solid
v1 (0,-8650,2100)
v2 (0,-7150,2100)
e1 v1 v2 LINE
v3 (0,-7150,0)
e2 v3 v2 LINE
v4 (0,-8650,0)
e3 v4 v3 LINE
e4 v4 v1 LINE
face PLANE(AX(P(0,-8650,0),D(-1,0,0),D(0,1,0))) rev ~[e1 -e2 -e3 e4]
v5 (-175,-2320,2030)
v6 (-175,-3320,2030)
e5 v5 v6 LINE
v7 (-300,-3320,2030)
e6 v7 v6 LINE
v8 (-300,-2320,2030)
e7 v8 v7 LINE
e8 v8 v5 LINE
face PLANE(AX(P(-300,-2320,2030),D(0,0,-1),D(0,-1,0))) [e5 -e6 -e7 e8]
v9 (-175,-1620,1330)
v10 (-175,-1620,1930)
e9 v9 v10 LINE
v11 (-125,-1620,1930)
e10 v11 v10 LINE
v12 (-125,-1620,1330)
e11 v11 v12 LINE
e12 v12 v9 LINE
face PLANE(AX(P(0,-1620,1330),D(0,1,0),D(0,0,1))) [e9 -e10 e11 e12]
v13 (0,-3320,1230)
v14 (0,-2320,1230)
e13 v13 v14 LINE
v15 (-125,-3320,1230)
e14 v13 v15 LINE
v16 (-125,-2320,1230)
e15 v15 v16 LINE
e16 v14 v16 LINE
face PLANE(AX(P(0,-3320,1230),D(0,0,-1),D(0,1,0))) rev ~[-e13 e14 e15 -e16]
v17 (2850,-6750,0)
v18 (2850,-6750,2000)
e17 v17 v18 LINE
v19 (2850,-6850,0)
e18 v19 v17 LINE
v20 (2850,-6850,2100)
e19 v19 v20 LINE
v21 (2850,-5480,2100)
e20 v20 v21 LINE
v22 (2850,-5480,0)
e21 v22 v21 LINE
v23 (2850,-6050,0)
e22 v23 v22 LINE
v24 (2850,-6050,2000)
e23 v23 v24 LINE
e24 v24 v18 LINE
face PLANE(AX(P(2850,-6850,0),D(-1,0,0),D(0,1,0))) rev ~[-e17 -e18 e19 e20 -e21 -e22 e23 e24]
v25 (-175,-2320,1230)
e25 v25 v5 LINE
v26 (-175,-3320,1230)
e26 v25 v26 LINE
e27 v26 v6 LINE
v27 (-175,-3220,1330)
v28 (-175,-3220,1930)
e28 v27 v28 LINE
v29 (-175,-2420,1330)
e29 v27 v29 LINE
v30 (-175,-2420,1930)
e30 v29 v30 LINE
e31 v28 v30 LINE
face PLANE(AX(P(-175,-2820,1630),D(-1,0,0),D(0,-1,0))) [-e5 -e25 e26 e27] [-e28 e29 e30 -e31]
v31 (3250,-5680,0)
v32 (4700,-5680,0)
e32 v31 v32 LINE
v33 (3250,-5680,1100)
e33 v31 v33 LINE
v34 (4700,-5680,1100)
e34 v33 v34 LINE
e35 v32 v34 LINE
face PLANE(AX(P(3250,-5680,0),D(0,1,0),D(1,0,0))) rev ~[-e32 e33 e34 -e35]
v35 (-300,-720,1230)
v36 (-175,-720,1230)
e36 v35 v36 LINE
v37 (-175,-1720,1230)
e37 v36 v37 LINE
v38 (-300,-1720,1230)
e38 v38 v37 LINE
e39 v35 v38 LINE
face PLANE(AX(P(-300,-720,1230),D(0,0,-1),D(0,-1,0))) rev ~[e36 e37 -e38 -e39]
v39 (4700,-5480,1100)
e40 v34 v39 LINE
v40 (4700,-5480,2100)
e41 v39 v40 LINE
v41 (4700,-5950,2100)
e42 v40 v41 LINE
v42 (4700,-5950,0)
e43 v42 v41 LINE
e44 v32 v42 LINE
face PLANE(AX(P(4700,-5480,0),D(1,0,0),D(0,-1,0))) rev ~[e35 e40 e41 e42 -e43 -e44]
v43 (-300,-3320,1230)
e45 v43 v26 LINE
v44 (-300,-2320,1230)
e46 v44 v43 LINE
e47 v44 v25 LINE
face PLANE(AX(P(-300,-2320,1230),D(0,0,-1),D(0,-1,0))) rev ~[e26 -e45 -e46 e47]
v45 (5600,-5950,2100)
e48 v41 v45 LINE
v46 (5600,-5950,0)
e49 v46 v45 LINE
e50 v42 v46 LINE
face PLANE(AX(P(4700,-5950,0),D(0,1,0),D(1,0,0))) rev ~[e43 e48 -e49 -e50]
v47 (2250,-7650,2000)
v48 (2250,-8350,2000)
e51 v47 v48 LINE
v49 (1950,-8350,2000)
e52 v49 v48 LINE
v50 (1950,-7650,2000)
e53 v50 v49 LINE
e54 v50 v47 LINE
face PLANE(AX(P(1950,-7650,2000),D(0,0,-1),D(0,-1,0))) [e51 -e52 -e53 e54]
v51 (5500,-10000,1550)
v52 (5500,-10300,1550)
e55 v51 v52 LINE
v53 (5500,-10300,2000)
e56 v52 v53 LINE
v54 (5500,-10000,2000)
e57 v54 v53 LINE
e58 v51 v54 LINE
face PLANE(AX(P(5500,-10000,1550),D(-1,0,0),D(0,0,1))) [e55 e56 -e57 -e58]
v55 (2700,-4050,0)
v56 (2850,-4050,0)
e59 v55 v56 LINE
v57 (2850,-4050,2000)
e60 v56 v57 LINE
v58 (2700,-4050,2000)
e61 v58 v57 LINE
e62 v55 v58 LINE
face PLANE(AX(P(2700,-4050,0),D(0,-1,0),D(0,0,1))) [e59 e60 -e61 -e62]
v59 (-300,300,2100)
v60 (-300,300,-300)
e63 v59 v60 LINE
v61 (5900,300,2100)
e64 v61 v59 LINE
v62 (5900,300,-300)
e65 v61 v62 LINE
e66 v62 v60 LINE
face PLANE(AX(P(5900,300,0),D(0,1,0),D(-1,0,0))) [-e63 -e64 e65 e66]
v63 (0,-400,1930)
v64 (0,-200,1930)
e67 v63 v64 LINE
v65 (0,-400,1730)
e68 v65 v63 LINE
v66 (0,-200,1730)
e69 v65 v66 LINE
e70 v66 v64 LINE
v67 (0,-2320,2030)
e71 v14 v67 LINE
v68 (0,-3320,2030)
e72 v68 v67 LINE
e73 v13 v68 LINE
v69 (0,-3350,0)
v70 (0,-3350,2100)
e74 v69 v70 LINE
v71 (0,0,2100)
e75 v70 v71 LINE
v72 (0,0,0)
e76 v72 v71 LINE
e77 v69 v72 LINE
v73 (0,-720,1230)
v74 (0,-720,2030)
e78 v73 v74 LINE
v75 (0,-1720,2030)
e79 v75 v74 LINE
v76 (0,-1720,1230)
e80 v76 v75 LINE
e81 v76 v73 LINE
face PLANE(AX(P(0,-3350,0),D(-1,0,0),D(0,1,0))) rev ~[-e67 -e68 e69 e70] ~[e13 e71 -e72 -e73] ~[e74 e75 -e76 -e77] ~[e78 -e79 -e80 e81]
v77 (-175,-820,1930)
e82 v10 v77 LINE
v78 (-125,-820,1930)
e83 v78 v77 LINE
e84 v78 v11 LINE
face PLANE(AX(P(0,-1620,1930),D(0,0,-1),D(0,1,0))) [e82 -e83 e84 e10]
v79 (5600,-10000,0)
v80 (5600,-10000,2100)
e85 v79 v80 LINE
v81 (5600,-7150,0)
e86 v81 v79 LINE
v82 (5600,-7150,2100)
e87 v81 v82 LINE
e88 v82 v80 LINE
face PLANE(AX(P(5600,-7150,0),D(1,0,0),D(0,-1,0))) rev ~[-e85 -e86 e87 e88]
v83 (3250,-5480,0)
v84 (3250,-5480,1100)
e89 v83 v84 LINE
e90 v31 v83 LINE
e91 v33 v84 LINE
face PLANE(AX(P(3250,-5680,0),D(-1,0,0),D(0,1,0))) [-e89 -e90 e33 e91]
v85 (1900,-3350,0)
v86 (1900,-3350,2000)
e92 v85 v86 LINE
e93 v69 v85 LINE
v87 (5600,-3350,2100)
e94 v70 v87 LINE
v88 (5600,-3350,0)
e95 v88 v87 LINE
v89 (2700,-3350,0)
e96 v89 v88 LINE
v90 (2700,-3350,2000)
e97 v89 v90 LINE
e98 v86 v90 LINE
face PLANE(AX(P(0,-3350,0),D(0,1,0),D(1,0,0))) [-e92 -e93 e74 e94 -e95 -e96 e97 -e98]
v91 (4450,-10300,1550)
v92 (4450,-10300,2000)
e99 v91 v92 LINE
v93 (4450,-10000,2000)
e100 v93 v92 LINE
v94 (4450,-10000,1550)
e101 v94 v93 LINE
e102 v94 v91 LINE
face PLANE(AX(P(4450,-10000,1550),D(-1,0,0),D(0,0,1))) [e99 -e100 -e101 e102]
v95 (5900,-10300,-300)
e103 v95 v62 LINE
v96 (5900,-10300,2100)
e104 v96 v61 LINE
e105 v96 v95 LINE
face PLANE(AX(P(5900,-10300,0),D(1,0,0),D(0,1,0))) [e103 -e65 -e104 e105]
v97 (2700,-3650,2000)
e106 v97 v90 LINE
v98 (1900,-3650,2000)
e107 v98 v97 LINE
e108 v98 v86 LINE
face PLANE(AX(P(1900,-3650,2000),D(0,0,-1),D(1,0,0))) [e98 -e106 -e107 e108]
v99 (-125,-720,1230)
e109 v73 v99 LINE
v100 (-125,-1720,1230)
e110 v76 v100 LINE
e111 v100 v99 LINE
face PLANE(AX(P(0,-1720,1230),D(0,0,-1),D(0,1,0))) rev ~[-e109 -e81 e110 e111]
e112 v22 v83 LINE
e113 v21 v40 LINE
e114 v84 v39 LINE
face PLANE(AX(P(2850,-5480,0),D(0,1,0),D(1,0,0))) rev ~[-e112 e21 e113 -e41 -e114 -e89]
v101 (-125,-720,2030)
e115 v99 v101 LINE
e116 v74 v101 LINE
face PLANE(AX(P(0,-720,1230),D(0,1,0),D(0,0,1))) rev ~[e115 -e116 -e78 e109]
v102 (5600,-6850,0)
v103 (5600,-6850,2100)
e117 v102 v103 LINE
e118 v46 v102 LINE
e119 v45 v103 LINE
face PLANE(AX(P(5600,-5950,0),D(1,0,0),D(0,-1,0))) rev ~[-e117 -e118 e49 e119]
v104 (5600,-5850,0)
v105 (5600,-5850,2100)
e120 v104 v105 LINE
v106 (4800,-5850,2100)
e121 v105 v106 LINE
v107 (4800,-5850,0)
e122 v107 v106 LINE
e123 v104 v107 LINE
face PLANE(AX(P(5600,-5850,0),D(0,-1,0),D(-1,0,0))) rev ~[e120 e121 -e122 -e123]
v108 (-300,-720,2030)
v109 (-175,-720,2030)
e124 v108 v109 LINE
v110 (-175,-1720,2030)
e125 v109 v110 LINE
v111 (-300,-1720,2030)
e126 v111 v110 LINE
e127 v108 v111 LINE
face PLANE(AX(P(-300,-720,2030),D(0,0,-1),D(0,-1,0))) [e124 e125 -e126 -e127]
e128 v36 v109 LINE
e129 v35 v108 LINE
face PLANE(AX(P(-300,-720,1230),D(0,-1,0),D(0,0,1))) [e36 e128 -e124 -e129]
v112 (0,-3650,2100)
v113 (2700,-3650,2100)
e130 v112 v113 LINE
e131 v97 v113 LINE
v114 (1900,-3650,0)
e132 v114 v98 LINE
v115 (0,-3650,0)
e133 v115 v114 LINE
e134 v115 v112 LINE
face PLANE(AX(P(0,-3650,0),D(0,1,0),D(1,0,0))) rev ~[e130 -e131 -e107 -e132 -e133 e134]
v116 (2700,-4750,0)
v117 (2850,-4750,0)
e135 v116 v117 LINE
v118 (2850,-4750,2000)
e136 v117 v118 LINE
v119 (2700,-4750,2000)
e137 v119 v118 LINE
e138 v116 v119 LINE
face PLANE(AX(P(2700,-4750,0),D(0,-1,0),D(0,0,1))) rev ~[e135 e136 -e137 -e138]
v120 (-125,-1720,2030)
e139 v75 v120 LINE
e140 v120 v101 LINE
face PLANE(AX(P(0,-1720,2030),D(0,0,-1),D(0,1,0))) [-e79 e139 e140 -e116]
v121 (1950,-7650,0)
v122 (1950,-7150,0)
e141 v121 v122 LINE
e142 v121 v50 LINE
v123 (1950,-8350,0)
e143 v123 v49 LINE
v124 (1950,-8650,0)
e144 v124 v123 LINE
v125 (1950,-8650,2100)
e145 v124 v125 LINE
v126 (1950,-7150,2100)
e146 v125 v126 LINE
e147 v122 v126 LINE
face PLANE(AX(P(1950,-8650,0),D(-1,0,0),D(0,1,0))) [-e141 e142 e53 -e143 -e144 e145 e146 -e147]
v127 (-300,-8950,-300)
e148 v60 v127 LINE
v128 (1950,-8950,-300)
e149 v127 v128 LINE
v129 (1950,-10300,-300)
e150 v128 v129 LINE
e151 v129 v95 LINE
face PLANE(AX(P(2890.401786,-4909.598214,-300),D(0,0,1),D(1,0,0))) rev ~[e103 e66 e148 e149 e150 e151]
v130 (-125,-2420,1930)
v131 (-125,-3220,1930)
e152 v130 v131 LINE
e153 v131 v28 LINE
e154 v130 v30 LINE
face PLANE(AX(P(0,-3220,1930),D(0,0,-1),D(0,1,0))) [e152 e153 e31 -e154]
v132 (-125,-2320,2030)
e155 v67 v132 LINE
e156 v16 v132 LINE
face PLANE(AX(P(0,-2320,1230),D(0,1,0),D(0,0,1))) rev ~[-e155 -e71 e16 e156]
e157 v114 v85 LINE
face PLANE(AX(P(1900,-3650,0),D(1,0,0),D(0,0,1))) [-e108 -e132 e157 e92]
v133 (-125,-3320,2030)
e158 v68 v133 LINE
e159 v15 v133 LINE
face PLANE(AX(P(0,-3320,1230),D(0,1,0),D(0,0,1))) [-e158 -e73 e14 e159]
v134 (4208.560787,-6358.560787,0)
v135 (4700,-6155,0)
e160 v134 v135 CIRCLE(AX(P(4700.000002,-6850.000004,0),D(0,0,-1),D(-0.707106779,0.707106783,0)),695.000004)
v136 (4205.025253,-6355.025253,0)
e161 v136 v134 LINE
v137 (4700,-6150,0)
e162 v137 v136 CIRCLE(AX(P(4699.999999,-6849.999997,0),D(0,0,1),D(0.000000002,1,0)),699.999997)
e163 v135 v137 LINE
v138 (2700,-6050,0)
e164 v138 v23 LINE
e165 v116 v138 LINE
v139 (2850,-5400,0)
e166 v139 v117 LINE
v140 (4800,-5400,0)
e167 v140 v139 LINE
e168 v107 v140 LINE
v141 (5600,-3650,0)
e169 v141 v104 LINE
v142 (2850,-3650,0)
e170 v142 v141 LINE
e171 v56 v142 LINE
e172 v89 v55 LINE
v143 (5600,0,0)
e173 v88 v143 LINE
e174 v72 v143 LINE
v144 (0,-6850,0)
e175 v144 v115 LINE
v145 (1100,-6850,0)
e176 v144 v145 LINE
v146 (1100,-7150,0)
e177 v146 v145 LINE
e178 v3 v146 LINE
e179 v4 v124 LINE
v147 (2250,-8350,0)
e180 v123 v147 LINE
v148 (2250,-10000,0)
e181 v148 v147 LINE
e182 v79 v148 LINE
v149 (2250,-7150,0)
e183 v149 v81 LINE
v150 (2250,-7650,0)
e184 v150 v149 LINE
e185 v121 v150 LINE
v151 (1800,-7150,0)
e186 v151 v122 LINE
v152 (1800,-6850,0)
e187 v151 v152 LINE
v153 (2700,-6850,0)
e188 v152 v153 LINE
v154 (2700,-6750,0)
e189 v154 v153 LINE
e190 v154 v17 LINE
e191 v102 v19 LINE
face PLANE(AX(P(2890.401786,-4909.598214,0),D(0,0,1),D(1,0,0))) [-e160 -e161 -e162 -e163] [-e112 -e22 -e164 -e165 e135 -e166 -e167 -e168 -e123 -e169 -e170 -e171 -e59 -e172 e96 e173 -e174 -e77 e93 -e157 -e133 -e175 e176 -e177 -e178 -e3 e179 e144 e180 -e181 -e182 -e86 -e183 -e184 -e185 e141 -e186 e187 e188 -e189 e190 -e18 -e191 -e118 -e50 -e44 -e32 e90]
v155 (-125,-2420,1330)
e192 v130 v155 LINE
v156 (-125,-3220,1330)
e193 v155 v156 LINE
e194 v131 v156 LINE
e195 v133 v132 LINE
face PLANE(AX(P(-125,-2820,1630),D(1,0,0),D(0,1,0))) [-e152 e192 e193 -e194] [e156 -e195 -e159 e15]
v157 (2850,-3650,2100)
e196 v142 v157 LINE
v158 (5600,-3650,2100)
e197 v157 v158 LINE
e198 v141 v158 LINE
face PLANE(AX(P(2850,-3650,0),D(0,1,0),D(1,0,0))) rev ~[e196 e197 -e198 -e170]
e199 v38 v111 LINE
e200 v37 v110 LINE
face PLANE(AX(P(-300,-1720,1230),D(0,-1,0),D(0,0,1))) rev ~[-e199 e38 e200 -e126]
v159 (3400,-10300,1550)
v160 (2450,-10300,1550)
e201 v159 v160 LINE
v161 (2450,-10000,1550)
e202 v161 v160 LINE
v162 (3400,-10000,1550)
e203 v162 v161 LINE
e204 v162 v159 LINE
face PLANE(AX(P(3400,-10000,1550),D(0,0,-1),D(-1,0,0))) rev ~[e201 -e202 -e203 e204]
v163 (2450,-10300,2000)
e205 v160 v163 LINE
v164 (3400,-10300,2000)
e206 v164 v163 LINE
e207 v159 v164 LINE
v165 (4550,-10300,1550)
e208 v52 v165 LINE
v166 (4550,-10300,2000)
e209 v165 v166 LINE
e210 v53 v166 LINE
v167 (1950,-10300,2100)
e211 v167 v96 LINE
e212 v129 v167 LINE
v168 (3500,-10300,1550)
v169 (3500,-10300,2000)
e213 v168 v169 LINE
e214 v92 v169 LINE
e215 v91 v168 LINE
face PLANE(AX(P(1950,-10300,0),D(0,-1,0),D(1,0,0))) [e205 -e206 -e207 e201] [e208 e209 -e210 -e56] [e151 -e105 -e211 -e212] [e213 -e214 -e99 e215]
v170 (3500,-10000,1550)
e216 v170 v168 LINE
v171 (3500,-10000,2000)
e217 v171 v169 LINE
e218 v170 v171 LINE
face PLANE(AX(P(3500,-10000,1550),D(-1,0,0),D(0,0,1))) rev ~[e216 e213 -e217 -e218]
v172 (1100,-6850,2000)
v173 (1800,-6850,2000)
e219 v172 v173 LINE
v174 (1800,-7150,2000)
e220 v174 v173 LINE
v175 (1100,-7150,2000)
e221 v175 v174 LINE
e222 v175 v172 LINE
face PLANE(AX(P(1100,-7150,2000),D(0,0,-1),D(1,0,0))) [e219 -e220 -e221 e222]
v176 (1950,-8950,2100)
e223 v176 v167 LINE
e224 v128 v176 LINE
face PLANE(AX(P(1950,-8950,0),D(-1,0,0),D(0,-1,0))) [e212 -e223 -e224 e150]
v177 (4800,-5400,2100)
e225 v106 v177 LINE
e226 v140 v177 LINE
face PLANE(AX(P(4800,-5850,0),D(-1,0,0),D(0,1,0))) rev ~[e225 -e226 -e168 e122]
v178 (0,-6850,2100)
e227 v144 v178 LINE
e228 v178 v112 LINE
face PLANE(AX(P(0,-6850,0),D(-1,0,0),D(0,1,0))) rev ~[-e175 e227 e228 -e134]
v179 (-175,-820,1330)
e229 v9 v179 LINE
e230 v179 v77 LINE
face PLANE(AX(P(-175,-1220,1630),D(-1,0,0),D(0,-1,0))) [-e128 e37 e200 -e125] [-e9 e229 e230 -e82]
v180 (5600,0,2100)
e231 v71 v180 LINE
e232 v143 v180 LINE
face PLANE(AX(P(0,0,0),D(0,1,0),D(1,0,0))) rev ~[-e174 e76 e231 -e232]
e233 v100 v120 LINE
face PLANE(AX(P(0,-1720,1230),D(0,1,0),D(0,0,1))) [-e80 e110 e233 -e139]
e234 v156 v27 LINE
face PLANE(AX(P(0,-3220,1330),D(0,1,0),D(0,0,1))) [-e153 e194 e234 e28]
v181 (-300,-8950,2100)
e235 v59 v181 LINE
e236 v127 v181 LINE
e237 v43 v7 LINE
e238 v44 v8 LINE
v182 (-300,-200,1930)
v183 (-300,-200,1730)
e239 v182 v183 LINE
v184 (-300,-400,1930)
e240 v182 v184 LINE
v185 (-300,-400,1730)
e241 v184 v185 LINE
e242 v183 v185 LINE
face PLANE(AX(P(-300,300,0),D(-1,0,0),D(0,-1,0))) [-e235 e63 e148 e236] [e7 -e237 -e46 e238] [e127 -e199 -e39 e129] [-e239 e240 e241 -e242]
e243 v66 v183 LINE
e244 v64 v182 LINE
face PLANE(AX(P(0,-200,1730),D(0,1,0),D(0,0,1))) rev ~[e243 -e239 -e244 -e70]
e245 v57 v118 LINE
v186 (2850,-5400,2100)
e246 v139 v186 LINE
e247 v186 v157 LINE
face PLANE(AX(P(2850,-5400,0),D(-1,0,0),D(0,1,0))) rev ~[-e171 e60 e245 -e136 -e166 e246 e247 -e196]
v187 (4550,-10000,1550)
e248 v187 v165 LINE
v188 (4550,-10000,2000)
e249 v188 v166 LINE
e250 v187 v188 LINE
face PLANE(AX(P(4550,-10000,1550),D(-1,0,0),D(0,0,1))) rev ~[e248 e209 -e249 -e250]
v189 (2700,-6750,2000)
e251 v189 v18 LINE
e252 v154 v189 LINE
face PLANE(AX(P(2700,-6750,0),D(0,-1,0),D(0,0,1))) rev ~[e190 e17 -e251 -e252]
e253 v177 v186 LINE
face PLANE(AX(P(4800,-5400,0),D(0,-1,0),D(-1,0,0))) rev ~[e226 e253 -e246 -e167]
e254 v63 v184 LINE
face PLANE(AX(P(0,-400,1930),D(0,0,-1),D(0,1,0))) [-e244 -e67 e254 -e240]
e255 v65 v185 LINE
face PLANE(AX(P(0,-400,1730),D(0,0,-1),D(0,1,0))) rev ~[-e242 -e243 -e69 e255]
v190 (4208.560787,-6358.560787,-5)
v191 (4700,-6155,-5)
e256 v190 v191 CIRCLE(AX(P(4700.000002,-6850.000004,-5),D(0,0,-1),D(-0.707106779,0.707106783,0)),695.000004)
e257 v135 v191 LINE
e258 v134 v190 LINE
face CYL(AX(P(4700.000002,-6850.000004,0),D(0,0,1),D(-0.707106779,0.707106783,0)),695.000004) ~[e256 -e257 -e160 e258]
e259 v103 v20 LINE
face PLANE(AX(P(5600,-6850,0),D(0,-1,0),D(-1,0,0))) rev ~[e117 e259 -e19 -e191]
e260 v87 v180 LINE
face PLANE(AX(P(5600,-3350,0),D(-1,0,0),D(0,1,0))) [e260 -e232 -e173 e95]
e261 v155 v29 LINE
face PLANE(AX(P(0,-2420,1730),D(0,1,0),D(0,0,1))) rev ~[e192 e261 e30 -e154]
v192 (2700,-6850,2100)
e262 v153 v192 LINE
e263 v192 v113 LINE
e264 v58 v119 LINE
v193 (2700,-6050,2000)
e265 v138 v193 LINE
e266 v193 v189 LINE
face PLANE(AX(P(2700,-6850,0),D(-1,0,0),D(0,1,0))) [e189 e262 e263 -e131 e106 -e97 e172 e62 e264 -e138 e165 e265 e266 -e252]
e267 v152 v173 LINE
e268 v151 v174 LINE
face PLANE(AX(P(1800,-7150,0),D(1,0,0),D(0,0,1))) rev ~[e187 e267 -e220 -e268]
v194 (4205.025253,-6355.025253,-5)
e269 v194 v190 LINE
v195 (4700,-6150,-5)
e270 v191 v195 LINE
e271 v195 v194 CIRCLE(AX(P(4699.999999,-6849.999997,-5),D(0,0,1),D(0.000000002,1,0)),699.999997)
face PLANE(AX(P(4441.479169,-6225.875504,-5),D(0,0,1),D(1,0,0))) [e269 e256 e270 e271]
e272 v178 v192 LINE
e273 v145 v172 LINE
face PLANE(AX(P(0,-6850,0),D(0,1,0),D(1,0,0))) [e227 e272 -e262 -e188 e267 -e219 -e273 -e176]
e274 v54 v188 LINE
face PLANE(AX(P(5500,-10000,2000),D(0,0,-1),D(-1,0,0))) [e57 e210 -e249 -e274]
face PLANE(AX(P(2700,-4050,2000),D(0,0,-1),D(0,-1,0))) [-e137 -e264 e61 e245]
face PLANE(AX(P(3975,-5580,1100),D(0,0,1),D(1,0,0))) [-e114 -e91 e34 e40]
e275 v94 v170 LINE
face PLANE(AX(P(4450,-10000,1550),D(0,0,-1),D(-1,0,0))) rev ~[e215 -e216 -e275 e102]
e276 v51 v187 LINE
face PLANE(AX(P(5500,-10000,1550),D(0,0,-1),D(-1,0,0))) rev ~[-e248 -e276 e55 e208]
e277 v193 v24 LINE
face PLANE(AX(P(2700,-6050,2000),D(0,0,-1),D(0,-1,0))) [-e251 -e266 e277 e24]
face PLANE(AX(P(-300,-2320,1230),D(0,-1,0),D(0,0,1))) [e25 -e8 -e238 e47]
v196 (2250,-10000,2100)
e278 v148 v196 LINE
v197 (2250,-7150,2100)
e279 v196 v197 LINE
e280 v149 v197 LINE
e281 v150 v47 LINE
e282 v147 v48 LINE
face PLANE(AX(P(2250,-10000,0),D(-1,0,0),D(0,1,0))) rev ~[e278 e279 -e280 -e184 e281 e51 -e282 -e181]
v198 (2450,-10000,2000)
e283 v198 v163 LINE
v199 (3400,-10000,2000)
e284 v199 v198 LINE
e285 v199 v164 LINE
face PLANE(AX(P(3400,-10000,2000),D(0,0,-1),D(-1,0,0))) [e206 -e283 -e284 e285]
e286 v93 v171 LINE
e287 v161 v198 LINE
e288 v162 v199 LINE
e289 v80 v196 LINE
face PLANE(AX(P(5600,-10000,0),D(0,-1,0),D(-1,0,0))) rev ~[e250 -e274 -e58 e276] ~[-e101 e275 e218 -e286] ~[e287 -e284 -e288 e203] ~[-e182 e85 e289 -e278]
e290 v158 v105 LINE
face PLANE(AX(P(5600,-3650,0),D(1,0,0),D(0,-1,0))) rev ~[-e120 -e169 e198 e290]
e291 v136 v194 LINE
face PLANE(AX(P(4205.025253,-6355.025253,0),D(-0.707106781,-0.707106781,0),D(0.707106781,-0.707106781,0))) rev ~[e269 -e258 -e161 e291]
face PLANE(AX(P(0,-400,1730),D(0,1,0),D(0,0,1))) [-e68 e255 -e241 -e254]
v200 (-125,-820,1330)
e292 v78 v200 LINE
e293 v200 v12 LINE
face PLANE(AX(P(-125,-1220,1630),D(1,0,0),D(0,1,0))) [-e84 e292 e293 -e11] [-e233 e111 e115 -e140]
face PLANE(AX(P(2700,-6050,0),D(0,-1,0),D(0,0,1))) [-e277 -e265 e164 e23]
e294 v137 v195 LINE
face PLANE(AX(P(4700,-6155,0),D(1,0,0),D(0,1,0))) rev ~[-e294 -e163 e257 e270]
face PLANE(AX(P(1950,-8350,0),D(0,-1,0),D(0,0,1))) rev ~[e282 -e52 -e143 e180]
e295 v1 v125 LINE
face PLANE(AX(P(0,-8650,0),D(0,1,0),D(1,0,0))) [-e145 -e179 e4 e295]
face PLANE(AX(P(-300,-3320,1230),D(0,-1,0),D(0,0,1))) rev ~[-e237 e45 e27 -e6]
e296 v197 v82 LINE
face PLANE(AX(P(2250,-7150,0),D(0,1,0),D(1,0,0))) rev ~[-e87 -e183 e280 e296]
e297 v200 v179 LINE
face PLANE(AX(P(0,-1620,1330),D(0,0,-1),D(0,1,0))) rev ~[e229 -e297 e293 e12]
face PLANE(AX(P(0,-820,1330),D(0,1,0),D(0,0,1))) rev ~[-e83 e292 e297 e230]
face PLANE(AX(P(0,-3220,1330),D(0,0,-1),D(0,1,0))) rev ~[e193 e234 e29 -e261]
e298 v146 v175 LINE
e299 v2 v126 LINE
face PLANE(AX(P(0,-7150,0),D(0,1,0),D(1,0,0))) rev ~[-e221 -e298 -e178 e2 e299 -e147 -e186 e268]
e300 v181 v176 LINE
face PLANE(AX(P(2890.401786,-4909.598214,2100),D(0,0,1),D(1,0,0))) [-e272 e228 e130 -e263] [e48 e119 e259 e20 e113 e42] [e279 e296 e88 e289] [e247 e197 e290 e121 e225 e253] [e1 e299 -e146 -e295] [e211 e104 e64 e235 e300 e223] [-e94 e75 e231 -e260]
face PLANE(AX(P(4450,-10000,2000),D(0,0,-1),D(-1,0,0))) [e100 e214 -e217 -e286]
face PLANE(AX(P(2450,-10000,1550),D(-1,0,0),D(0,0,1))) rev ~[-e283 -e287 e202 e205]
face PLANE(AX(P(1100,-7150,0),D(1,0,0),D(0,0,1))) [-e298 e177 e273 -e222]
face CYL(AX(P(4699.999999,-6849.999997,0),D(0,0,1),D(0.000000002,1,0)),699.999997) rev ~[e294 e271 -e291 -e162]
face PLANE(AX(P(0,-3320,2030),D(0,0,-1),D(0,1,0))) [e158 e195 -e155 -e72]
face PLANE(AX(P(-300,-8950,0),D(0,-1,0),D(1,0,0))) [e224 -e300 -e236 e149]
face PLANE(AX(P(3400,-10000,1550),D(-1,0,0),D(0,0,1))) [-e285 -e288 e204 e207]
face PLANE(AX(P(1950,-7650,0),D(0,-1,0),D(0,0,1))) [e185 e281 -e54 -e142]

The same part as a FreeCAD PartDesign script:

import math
import FreeCAD as App
import Part
import Sketcher
Q = App.Units.Quantity

doc = App.newDocument("Part")
body = doc.addObject("PartDesign::Body", "Body")

# Sketch on XY plane
sketch1 = body.newObject("Sketcher::SketchObject", "Sketch")
sketch1.AttachmentSupport = (doc.getObject("XY_Plane"), [""])
sketch1.MapMode = "FlatFace"
sketch1.addGeometry([
    Part.LineSegment(App.Vector(5900, -10300, 0), App.Vector(5900, 300, 0)),  # 0
    Part.LineSegment(App.Vector(5900, 300, 0), App.Vector(-300, 300, 0)),  # 1
    Part.LineSegment(App.Vector(-300, 300, 0), App.Vector(-300, -8950, 0)),  # 2
    Part.LineSegment(App.Vector(-300, -8950, 0), App.Vector(1950, -8950, 0)),  # 3
    Part.LineSegment(App.Vector(1950, -8950, 0), App.Vector(1950, -10300, 0)),  # 4
    Part.LineSegment(App.Vector(1950, -10300, 0), App.Vector(5900, -10300, 0)),  # 5
    Part.LineSegment(App.Vector(1950, -8650, 0), App.Vector(0, -8650, 0)),  # 6
    Part.LineSegment(App.Vector(0, -8650, 0), App.Vector(0, -7150, 0)),  # 7
    Part.LineSegment(App.Vector(0, -7150, 0), App.Vector(1950, -7150, 0)),  # 8
    Part.LineSegment(App.Vector(1950, -7150, 0), App.Vector(1950, -8650, 0)),  # 9
    Part.LineSegment(App.Vector(2700, -6850, 0), App.Vector(0, -6850, 0)),  # 10
    Part.LineSegment(App.Vector(0, -6850, 0), App.Vector(0, -3650, 0)),  # 11
    Part.LineSegment(App.Vector(0, -3650, 0), App.Vector(2700, -3650, 0)),  # 12
    Part.LineSegment(App.Vector(2700, -3650, 0), App.Vector(2700, -6850, 0)),  # 13
    Part.LineSegment(App.Vector(2250, -7150, 0), App.Vector(5600, -7150, 0)),  # 14
    Part.LineSegment(App.Vector(5600, -7150, 0), App.Vector(5600, -10000, 0)),  # 15
    Part.LineSegment(App.Vector(5600, -10000, 0), App.Vector(2250, -10000, 0)),  # 16
    Part.LineSegment(App.Vector(2250, -10000, 0), App.Vector(2250, -7150, 0)),  # 17
    Part.LineSegment(App.Vector(5600, -5950, 0), App.Vector(5600, -6850, 0)),  # 18
    Part.LineSegment(App.Vector(5600, -6850, 0), App.Vector(2850, -6850, 0)),  # 19
    Part.LineSegment(App.Vector(2850, -6850, 0), App.Vector(2850, -5480, 0)),  # 20
    Part.LineSegment(App.Vector(2850, -5480, 0), App.Vector(4700, -5480, 0)),  # 21
    Part.LineSegment(App.Vector(4700, -5480, 0), App.Vector(4700, -5950, 0)),  # 22
    Part.LineSegment(App.Vector(4700, -5950, 0), App.Vector(5600, -5950, 0)),  # 23
    Part.LineSegment(App.Vector(4800, -5400, 0), App.Vector(2850, -5400, 0)),  # 24
    Part.LineSegment(App.Vector(2850, -5400, 0), App.Vector(2850, -3650, 0)),  # 25
    Part.LineSegment(App.Vector(2850, -3650, 0), App.Vector(5600, -3650, 0)),  # 26
    Part.LineSegment(App.Vector(5600, -3650, 0), App.Vector(5600, -5850, 0)),  # 27
    Part.LineSegment(App.Vector(5600, -5850, 0), App.Vector(4800, -5850, 0)),  # 28
    Part.LineSegment(App.Vector(4800, -5850, 0), App.Vector(4800, -5400, 0)),  # 29
    Part.LineSegment(App.Vector(5600, -3350, 0), App.Vector(0, -3350, 0)),  # 30
    Part.LineSegment(App.Vector(0, -3350, 0), App.Vector(0, 0, 0)),  # 31
    Part.LineSegment(App.Vector(0, 0, 0), App.Vector(5600, 0, 0)),  # 32
    Part.LineSegment(App.Vector(5600, 0, 0), App.Vector(5600, -3350, 0)),  # 33
], False)
sketch1.addConstraint([
    Sketcher.Constraint("Coincident", 0, 2, 1, 1),
    Sketcher.Constraint("Coincident", 1, 2, 2, 1),
    Sketcher.Constraint("Coincident", 2, 2, 3, 1),
    Sketcher.Constraint("Coincident", 3, 2, 4, 1),
    Sketcher.Constraint("Coincident", 4, 2, 5, 1),
    Sketcher.Constraint("Coincident", 5, 2, 0, 1),
    Sketcher.Constraint("Coincident", 6, 2, 7, 1),
    Sketcher.Constraint("Coincident", 7, 2, 8, 1),
    Sketcher.Constraint("Coincident", 8, 2, 9, 1),
    Sketcher.Constraint("Coincident", 9, 2, 6, 1),
    Sketcher.Constraint("Coincident", 10, 2, 11, 1),
    Sketcher.Constraint("Coincident", 11, 2, 12, 1),
    Sketcher.Constraint("Coincident", 12, 2, 13, 1),
    Sketcher.Constraint("Coincident", 13, 2, 10, 1),
    Sketcher.Constraint("Coincident", 14, 2, 15, 1),
    Sketcher.Constraint("Coincident", 15, 2, 16, 1),
    Sketcher.Constraint("Coincident", 16, 2, 17, 1),
    Sketcher.Constraint("Coincident", 17, 2, 14, 1),
    Sketcher.Constraint("Coincident", 18, 2, 19, 1),
    Sketcher.Constraint("Coincident", 19, 2, 20, 1),
    Sketcher.Constraint("Coincident", 20, 2, 21, 1),
    Sketcher.Constraint("Coincident", 21, 2, 22, 1),
    Sketcher.Constraint("Coincident", 22, 2, 23, 1),
    Sketcher.Constraint("Coincident", 23, 2, 18, 1),
    Sketcher.Constraint("Coincident", 24, 2, 25, 1),
    Sketcher.Constraint("Coincident", 25, 2, 26, 1),
    Sketcher.Constraint("Coincident", 26, 2, 27, 1),
    Sketcher.Constraint("Coincident", 27, 2, 28, 1),
    Sketcher.Constraint("Coincident", 28, 2, 29, 1),
    Sketcher.Constraint("Coincident", 29, 2, 24, 1),
    Sketcher.Constraint("Coincident", 30, 2, 31, 1),
    Sketcher.Constraint("Coincident", 31, 2, 32, 1),
    Sketcher.Constraint("Coincident", 32, 2, 33, 1),
    Sketcher.Constraint("Coincident", 33, 2, 30, 1),
    Sketcher.Constraint("Vertical", 0),
    Sketcher.Constraint("Horizontal", 1),
    Sketcher.Constraint("Vertical", 2),
    Sketcher.Constraint("Horizontal", 3),
    Sketcher.Constraint("Vertical", 4),
    Sketcher.Constraint("Horizontal", 5),
    Sketcher.Constraint("Horizontal", 6),
    Sketcher.Constraint("Vertical", 7),
    Sketcher.Constraint("Horizontal", 8),
    Sketcher.Constraint("Vertical", 9),
    Sketcher.Constraint("Horizontal", 10),
    Sketcher.Constraint("Vertical", 11),
    Sketcher.Constraint("Horizontal", 12),
    Sketcher.Constraint("Vertical", 13),
    Sketcher.Constraint("Horizontal", 14),
    Sketcher.Constraint("Vertical", 15),
    Sketcher.Constraint("Horizontal", 16),
    Sketcher.Constraint("Vertical", 17),
    Sketcher.Constraint("Vertical", 18),
    Sketcher.Constraint("Horizontal", 19),
    Sketcher.Constraint("Vertical", 20),
    Sketcher.Constraint("Horizontal", 21),
    Sketcher.Constraint("Vertical", 22),
    Sketcher.Constraint("Horizontal", 23),
    Sketcher.Constraint("Horizontal", 24),
    Sketcher.Constraint("Vertical", 25),
    Sketcher.Constraint("Horizontal", 26),
    Sketcher.Constraint("Vertical", 27),
    Sketcher.Constraint("Horizontal", 28),
    Sketcher.Constraint("Vertical", 29),
    Sketcher.Constraint("Horizontal", 30),
    Sketcher.Constraint("Vertical", 31),
    Sketcher.Constraint("Horizontal", 32),
    Sketcher.Constraint("Vertical", 33),
    Sketcher.Constraint("Coincident", 31, 2, -1, 1),
    Sketcher.Constraint("PointOnObject", 6, 2, -2),
    Sketcher.Constraint("PointOnObject", 10, 2, -2),
    Sketcher.Constraint("Horizontal", 8, 2, 14, 2),
    Sketcher.Constraint("Horizontal", 13, 2, 18, 2),
    Sketcher.Constraint("Horizontal", 12, 2, 25, 2),
    Sketcher.Constraint("Vertical", 4, 2, 8, 2),
    Sketcher.Constraint("Vertical", 15, 2, 18, 2),
    Sketcher.Constraint("Vertical", 20, 2, 24, 2),
    Sketcher.Constraint("Vertical", 23, 2, 26, 2),
    Sketcher.Constraint("Vertical", 27, 2, 32, 2),
    Sketcher.Constraint("Equal", 8, 24),
    Sketcher.Constraint("Equal", 23, 18),
    Sketcher.Constraint("Equal", 16, 31),
    Sketcher.Constraint("DistanceX", 1, 2, 1, 1, 6200.0),
    Sketcher.Constraint("DistanceX", 3, 1, 3, 2, 2250.0),
    Sketcher.Constraint("DistanceX", 6, 2, 6, 1, 1950.0),
    Sketcher.Constraint("DistanceX", 10, 2, 10, 1, 2700.0),
    Sketcher.Constraint("DistanceX", 14, 1, 14, 2, 3350.0),
    Sketcher.Constraint("DistanceX", 19, 2, 19, 1, 2750.0),
    Sketcher.Constraint("DistanceX", 21, 1, 21, 2, 1850.0),
    Sketcher.Constraint("DistanceX", 30, 2, 30, 1, 5600.0),
    Sketcher.Constraint("DistanceY", 0, 1, 0, 2, 10600.0),
    Sketcher.Constraint("DistanceY", 2, 2, 2, 1, 9250.0),
    Sketcher.Constraint("DistanceY", 7, 1, 7, 2, 1500.0),
    Sketcher.Constraint("DistanceY", 11, 1, 11, 2, 3200.0),
    Sketcher.Constraint("DistanceY", 15, 2, 15, 1, 2850.0),
    Sketcher.Constraint("DistanceY", 20, 1, 20, 2, 1370.0),
    Sketcher.Constraint("DistanceY", 25, 1, 25, 2, 1750.0),
    Sketcher.Constraint("DistanceY", 27, 2, 27, 1, 2200.0),
    Sketcher.Constraint("DistanceY", -1, 1, 0, 2, 300.0),
    Sketcher.Constraint("DistanceY", 6, 2, -1, 1, 8650.0),
    Sketcher.Constraint("DistanceY", 10, 2, -1, 1, 6850.0),
])
pad1 = body.newObject("PartDesign::Pad", "Pad")
pad1.Profile = sketch1
pad1.Length = 2100

# Sketch on XY plane
sketch2 = body.newObject("Sketcher::SketchObject", "Sketch001")
sketch2.AttachmentSupport = (doc.getObject("XY_Plane"), [""])
sketch2.MapMode = "FlatFace"
sketch2.addGeometry([
    Part.LineSegment(App.Vector(-300, 300, 0), App.Vector(-300, -8950, 0)),  # 0
    Part.LineSegment(App.Vector(-300, -8950, 0), App.Vector(1950, -8950, 0)),  # 1
    Part.LineSegment(App.Vector(1950, -8950, 0), App.Vector(1950, -10300, 0)),  # 2
    Part.LineSegment(App.Vector(1950, -10300, 0), App.Vector(5900, -10300, 0)),  # 3
    Part.LineSegment(App.Vector(5900, -10300, 0), App.Vector(5900, 300, 0)),  # 4
    Part.LineSegment(App.Vector(5900, 300, 0), App.Vector(-300, 300, 0)),  # 5
], False)
sketch2.addConstraint([
    Sketcher.Constraint("Coincident", 0, 2, 1, 1),
    Sketcher.Constraint("Coincident", 1, 2, 2, 1),
    Sketcher.Constraint("Coincident", 2, 2, 3, 1),
    Sketcher.Constraint("Coincident", 3, 2, 4, 1),
    Sketcher.Constraint("Coincident", 4, 2, 5, 1),
    Sketcher.Constraint("Coincident", 5, 2, 0, 1),
    Sketcher.Constraint("Vertical", 0),
    Sketcher.Constraint("Horizontal", 1),
    Sketcher.Constraint("Vertical", 2),
    Sketcher.Constraint("Horizontal", 3),
    Sketcher.Constraint("Vertical", 4),
    Sketcher.Constraint("Horizontal", 5),
    Sketcher.Constraint("DistanceX", 1, 1, 1, 2, 2250.0),
    Sketcher.Constraint("DistanceX", 3, 1, 3, 2, 3950.0),
    Sketcher.Constraint("DistanceY", 0, 2, 0, 1, 9250.0),
    Sketcher.Constraint("DistanceY", 2, 2, 2, 1, 1350.0),
    Sketcher.Constraint("DistanceX", 0, 2, -1, 1, 300.0),
    Sketcher.Constraint("DistanceY", 0, 2, -1, 1, 8950.0),
])
pad2 = body.newObject("PartDesign::Pad", "Pad001")
pad2.Profile = sketch2
pad2.Length = 300
pad2.Reversed = True

# Sketch on XZ plane
sketch3 = body.newObject("Sketcher::SketchObject", "Sketch002")
sketch3.AttachmentSupport = (doc.getObject("XZ_Plane"), [""])
sketch3.MapMode = "FlatFace"
sketch3.AttachmentOffset = App.Placement(App.Vector(0, 0, 10000), App.Rotation())
sketch3.addGeometry([
    Part.LineSegment(App.Vector(5500, 2000, 0), App.Vector(5500, 1550, 0)),  # 0
    Part.LineSegment(App.Vector(5500, 1550, 0), App.Vector(4550, 1550, 0)),  # 1
    Part.LineSegment(App.Vector(4550, 1550, 0), App.Vector(4550, 2000, 0)),  # 2
    Part.LineSegment(App.Vector(4550, 2000, 0), App.Vector(5500, 2000, 0)),  # 3
    Part.LineSegment(App.Vector(4450, 2000, 0), App.Vector(4450, 1550, 0)),  # 4
    Part.LineSegment(App.Vector(4450, 1550, 0), App.Vector(3500, 1550, 0)),  # 5
    Part.LineSegment(App.Vector(3500, 1550, 0), App.Vector(3500, 2000, 0)),  # 6
    Part.LineSegment(App.Vector(3500, 2000, 0), App.Vector(4450, 2000, 0)),  # 7
    Part.LineSegment(App.Vector(3400, 2000, 0), App.Vector(3400, 1550, 0)),  # 8
    Part.LineSegment(App.Vector(3400, 1550, 0), App.Vector(2450, 1550, 0)),  # 9
    Part.LineSegment(App.Vector(2450, 1550, 0), App.Vector(2450, 2000, 0)),  # 10
    Part.LineSegment(App.Vector(2450, 2000, 0), App.Vector(3400, 2000, 0)),  # 11
], False)
sketch3.addConstraint([
    Sketcher.Constraint("Coincident", 0, 2, 1, 1),
    Sketcher.Constraint("Coincident", 1, 2, 2, 1),
    Sketcher.Constraint("Coincident", 2, 2, 3, 1),
    Sketcher.Constraint("Coincident", 3, 2, 0, 1),
    Sketcher.Constraint("Coincident", 4, 2, 5, 1),
    Sketcher.Constraint("Coincident", 5, 2, 6, 1),
    Sketcher.Constraint("Coincident", 6, 2, 7, 1),
    Sketcher.Constraint("Coincident", 7, 2, 4, 1),
    Sketcher.Constraint("Coincident", 8, 2, 9, 1),
    Sketcher.Constraint("Coincident", 9, 2, 10, 1),
    Sketcher.Constraint("Coincident", 10, 2, 11, 1),
    Sketcher.Constraint("Coincident", 11, 2, 8, 1),
    Sketcher.Constraint("Vertical", 0),
    Sketcher.Constraint("Horizontal", 1),
    Sketcher.Constraint("Vertical", 2),
    Sketcher.Constraint("Horizontal", 3),
    Sketcher.Constraint("Vertical", 4),
    Sketcher.Constraint("Horizontal", 5),
    Sketcher.Constraint("Vertical", 6),
    Sketcher.Constraint("Horizontal", 7),
    Sketcher.Constraint("Vertical", 8),
    Sketcher.Constraint("Horizontal", 9),
    Sketcher.Constraint("Vertical", 10),
    Sketcher.Constraint("Horizontal", 11),
    Sketcher.Constraint("Horizontal", 1, 2, 4, 2),
    Sketcher.Constraint("Horizontal", 3, 2, 6, 2),
    Sketcher.Constraint("Horizontal", 5, 2, 8, 2),
    Sketcher.Constraint("Horizontal", 7, 2, 10, 2),
    Sketcher.Constraint("Equal", 3, 5),
    Sketcher.Constraint("Equal", 7, 9),
    Sketcher.Constraint("DistanceX", 1, 2, 1, 1, 950.0),
    Sketcher.Constraint("DistanceY", 0, 2, 0, 1, 450.0),
    Sketcher.Constraint("DistanceX", -1, 1, 0, 2, 5500.0),
    Sketcher.Constraint("DistanceY", -1, 1, 0, 2, 1550.0),
    Sketcher.Constraint("DistanceX", -1, 1, 4, 2, 4450.0),
    Sketcher.Constraint("DistanceX", -1, 1, 8, 2, 3400.0),
])
pocket1 = body.newObject("PartDesign::Pocket", "Pocket")
pocket1.Profile = sketch3
pocket1.Type = "ThroughAll"
pocket1.Reversed = True

# Sketch on XZ plane
sketch4 = body.newObject("Sketcher::SketchObject", "Sketch003")
sketch4.AttachmentSupport = (doc.getObject("XZ_Plane"), [""])
sketch4.MapMode = "FlatFace"
sketch4.AttachmentOffset = App.Placement(App.Vector(0, 0, 7150), App.Rotation())
sketch4.addGeometry([
    Part.LineSegment(App.Vector(1100, 2000, 0), App.Vector(1100, 0, 0)),
    Part.LineSegment(App.Vector(1100, 0, 0), App.Vector(1800, 0, 0)),
    Part.LineSegment(App.Vector(1800, 0, 0), App.Vector(1800, 2000, 0)),
    Part.LineSegment(App.Vector(1800, 2000, 0), App.Vector(1100, 2000, 0)),
], False)
sketch4.addConstraint([
    Sketcher.Constraint("Coincident", 0, 2, 1, 1),
    Sketcher.Constraint("Coincident", 1, 2, 2, 1),
    Sketcher.Constraint("Coincident", 2, 2, 3, 1),
    Sketcher.Constraint("Coincident", 3, 2, 0, 1),
    Sketcher.Constraint("Vertical", 0),
    Sketcher.Constraint("Horizontal", 1),
    Sketcher.Constraint("Vertical", 2),
    Sketcher.Constraint("Horizontal", 3),
    Sketcher.Constraint("PointOnObject", 0, 2, -1),
    Sketcher.Constraint("DistanceX", 1, 1, 1, 2, 700.0),
    Sketcher.Constraint("DistanceY", 0, 2, 0, 1, 2000.0),
    Sketcher.Constraint("DistanceX", -1, 1, 0, 2, 1100.0),
])
pocket2 = body.newObject("PartDesign::Pocket", "Pocket001")
pocket2.Profile = sketch4
pocket2.Length = 300

# Sketch on YZ plane
sketch5 = body.newObject("Sketcher::SketchObject", "Sketch004")
sketch5.AttachmentSupport = (doc.getObject("YZ_Plane"), [""])
sketch5.MapMode = "FlatFace"
sketch5.AttachmentOffset = App.Placement(App.Vector(0, 0, 1950), App.Rotation())
sketch5.addGeometry([
    Part.LineSegment(App.Vector(-7650, 2000, 0), App.Vector(-7650, 0, 0)),
    Part.LineSegment(App.Vector(-7650, 0, 0), App.Vector(-8350, 0, 0)),
    Part.LineSegment(App.Vector(-8350, 0, 0), App.Vector(-8350, 2000, 0)),
    Part.LineSegment(App.Vector(-8350, 2000, 0), App.Vector(-7650, 2000, 0)),
], False)
sketch5.addConstraint([
    Sketcher.Constraint("Coincident", 0, 2, 1, 1),
    Sketcher.Constraint("Coincident", 1, 2, 2, 1),
    Sketcher.Constraint("Coincident", 2, 2, 3, 1),
    Sketcher.Constraint("Coincident", 3, 2, 0, 1),
    Sketcher.Constraint("Vertical", 0),
    Sketcher.Constraint("Horizontal", 1),
    Sketcher.Constraint("Vertical", 2),
    Sketcher.Constraint("Horizontal", 3),
    Sketcher.Constraint("PointOnObject", 0, 2, -1),
    Sketcher.Constraint("DistanceX", 1, 2, 1, 1, 700.0),
    Sketcher.Constraint("DistanceY", 0, 2, 0, 1, 2000.0),
    Sketcher.Constraint("DistanceX", 0, 2, -1, 1, 7650.0),
])
pocket3 = body.newObject("PartDesign::Pocket", "Pocket002")
pocket3.Profile = sketch5
pocket3.Length = 300
pocket3.Reversed = True

# Sketch on XZ plane
sketch6 = body.newObject("Sketcher::SketchObject", "Sketch005")
sketch6.AttachmentSupport = (doc.getObject("XZ_Plane"), [""])
sketch6.MapMode = "FlatFace"
sketch6.AttachmentOffset = App.Placement(App.Vector(0, 0, 3650), App.Rotation())
sketch6.addGeometry([
    Part.LineSegment(App.Vector(1900, 2000, 0), App.Vector(1900, 0, 0)),
    Part.LineSegment(App.Vector(1900, 0, 0), App.Vector(2700, 0, 0)),
    Part.LineSegment(App.Vector(2700, 0, 0), App.Vector(2700, 2000, 0)),
    Part.LineSegment(App.Vector(2700, 2000, 0), App.Vector(1900, 2000, 0)),
], False)
sketch6.addConstraint([
    Sketcher.Constraint("Coincident", 0, 2, 1, 1),
    Sketcher.Constraint("Coincident", 1, 2, 2, 1),
    Sketcher.Constraint("Coincident", 2, 2, 3, 1),
    Sketcher.Constraint("Coincident", 3, 2, 0, 1),
    Sketcher.Constraint("Vertical", 0),
    Sketcher.Constraint("Horizontal", 1),
    Sketcher.Constraint("Vertical", 2),
    Sketcher.Constraint("Horizontal", 3),
    Sketcher.Constraint("PointOnObject", 0, 2, -1),
    Sketcher.Constraint("DistanceX", 1, 1, 1, 2, 800.0),
    Sketcher.Constraint("DistanceY", 0, 2, 0, 1, 2000.0),
    Sketcher.Constraint("DistanceX", -1, 1, 0, 2, 1900.0),
])
pocket4 = body.newObject("PartDesign::Pocket", "Pocket003")
pocket4.Profile = sketch6
pocket4.Length = 300

# Sketch on YZ plane
sketch7 = body.newObject("Sketcher::SketchObject", "Sketch006")
sketch7.AttachmentSupport = (doc.getObject("YZ_Plane"), [""])
sketch7.MapMode = "FlatFace"
sketch7.AttachmentOffset = App.Placement(App.Vector(0, 0, 2700), App.Rotation())
sketch7.addGeometry([
    Part.LineSegment(App.Vector(-6050, 2000, 0), App.Vector(-6050, 0, 0)),  # 0
    Part.LineSegment(App.Vector(-6050, 0, 0), App.Vector(-6750, 0, 0)),  # 1
    Part.LineSegment(App.Vector(-6750, 0, 0), App.Vector(-6750, 2000, 0)),  # 2
    Part.LineSegment(App.Vector(-6750, 2000, 0), App.Vector(-6050, 2000, 0)),  # 3
    Part.LineSegment(App.Vector(-4050, 2000, 0), App.Vector(-4050, 0, 0)),  # 4
    Part.LineSegment(App.Vector(-4050, 0, 0), App.Vector(-4750, 0, 0)),  # 5
    Part.LineSegment(App.Vector(-4750, 0, 0), App.Vector(-4750, 2000, 0)),  # 6
    Part.LineSegment(App.Vector(-4750, 2000, 0), App.Vector(-4050, 2000, 0)),  # 7
], False)
sketch7.addConstraint([
    Sketcher.Constraint("Coincident", 0, 2, 1, 1),
    Sketcher.Constraint("Coincident", 1, 2, 2, 1),
    Sketcher.Constraint("Coincident", 2, 2, 3, 1),
    Sketcher.Constraint("Coincident", 3, 2, 0, 1),
    Sketcher.Constraint("Coincident", 4, 2, 5, 1),
    Sketcher.Constraint("Coincident", 5, 2, 6, 1),
    Sketcher.Constraint("Coincident", 6, 2, 7, 1),
    Sketcher.Constraint("Coincident", 7, 2, 4, 1),
    Sketcher.Constraint("Vertical", 0),
    Sketcher.Constraint("Horizontal", 1),
    Sketcher.Constraint("Vertical", 2),
    Sketcher.Constraint("Horizontal", 3),
    Sketcher.Constraint("Vertical", 4),
    Sketcher.Constraint("Horizontal", 5),
    Sketcher.Constraint("Vertical", 6),
    Sketcher.Constraint("Horizontal", 7),
    Sketcher.Constraint("PointOnObject", 0, 2, -1),
    Sketcher.Constraint("PointOnObject", 4, 2, -1),
    Sketcher.Constraint("Horizontal", 3, 2, 6, 2),
    Sketcher.Constraint("Equal", 3, 5),
    Sketcher.Constraint("DistanceX", 1, 2, 1, 1, 700.0),
    Sketcher.Constraint("DistanceY", 0, 2, 0, 1, 2000.0),
    Sketcher.Constraint("DistanceX", 0, 2, -1, 1, 6050.0),
    Sketcher.Constraint("DistanceX", 4, 2, -1, 1, 4050.0),
])
pocket5 = body.newObject("PartDesign::Pocket", "Pocket004")
pocket5.Profile = sketch7
pocket5.Length = 150
pocket5.Reversed = True

# Sketch on YZ plane
sketch8 = body.newObject("Sketcher::SketchObject", "Sketch007")
sketch8.AttachmentSupport = (doc.getObject("YZ_Plane"), [""])
sketch8.MapMode = "FlatFace"
sketch8.addGeometry([
    Part.LineSegment(App.Vector(-3220, 1930, 0), App.Vector(-3220, 1730, 0)),  # 0
    Part.LineSegment(App.Vector(-3220, 1730, 0), App.Vector(-2420, 1730, 0)),  # 1
    Part.LineSegment(App.Vector(-2420, 1730, 0), App.Vector(-2420, 1930, 0)),  # 2
    Part.LineSegment(App.Vector(-2420, 1930, 0), App.Vector(-3220, 1930, 0)),  # 3
    Part.LineSegment(App.Vector(-400, 1930, 0), App.Vector(-400, 1730, 0)),  # 4
    Part.LineSegment(App.Vector(-400, 1730, 0), App.Vector(-200, 1730, 0)),  # 5
    Part.LineSegment(App.Vector(-200, 1730, 0), App.Vector(-200, 1930, 0)),  # 6
    Part.LineSegment(App.Vector(-200, 1930, 0), App.Vector(-400, 1930, 0)),  # 7
], False)
sketch8.addConstraint([
    Sketcher.Constraint("Coincident", 0, 2, 1, 1),
    Sketcher.Constraint("Coincident", 1, 2, 2, 1),
    Sketcher.Constraint("Coincident", 2, 2, 3, 1),
    Sketcher.Constraint("Coincident", 3, 2, 0, 1),
    Sketcher.Constraint("Coincident", 4, 2, 5, 1),
    Sketcher.Constraint("Coincident", 5, 2, 6, 1),
    Sketcher.Constraint("Coincident", 6, 2, 7, 1),
    Sketcher.Constraint("Coincident", 7, 2, 4, 1),
    Sketcher.Constraint("Vertical", 0),
    Sketcher.Constraint("Horizontal", 1),
    Sketcher.Constraint("Vertical", 2),
    Sketcher.Constraint("Horizontal", 3),
    Sketcher.Constraint("Vertical", 4),
    Sketcher.Constraint("Horizontal", 5),
    Sketcher.Constraint("Vertical", 6),
    Sketcher.Constraint("Horizontal", 7),
    Sketcher.Constraint("Horizontal", 1, 2, 4, 2),
    Sketcher.Constraint("Horizontal", 3, 2, 6, 2),
    Sketcher.Constraint("Equal", 7, 0),
    Sketcher.Constraint("DistanceX", 1, 1, 1, 2, 800.0),
    Sketcher.Constraint("DistanceX", 5, 1, 5, 2, 200.0),
    Sketcher.Constraint("DistanceX", 0, 2, -1, 1, 3220.0),
    Sketcher.Constraint("DistanceY", -1, 1, 0, 2, 1730.0),
    Sketcher.Constraint("DistanceX", 4, 2, -1, 1, 400.0),
])
pocket6 = body.newObject("PartDesign::Pocket", "Pocket005")
pocket6.Profile = sketch8
pocket6.Type = "ThroughAll"

# Sketch on YZ plane
sketch9 = body.newObject("Sketcher::SketchObject", "Sketch008")
sketch9.AttachmentSupport = (doc.getObject("YZ_Plane"), [""])
sketch9.MapMode = "FlatFace"
sketch9.addGeometry([
    Part.LineSegment(App.Vector(-3220, 1930, 0), App.Vector(-3220, 1330, 0)),  # 0
    Part.LineSegment(App.Vector(-3220, 1330, 0), App.Vector(-2420, 1330, 0)),  # 1
    Part.LineSegment(App.Vector(-2420, 1330, 0), App.Vector(-2420, 1930, 0)),  # 2
    Part.LineSegment(App.Vector(-2420, 1930, 0), App.Vector(-3220, 1930, 0)),  # 3
    Part.LineSegment(App.Vector(-1620, 1930, 0), App.Vector(-1620, 1330, 0)),  # 4
    Part.LineSegment(App.Vector(-1620, 1330, 0), App.Vector(-820, 1330, 0)),  # 5
    Part.LineSegment(App.Vector(-820, 1330, 0), App.Vector(-820, 1930, 0)),  # 6
    Part.LineSegment(App.Vector(-820, 1930, 0), App.Vector(-1620, 1930, 0)),  # 7
    Part.LineSegment(App.Vector(-400, 1930, 0), App.Vector(-400, 1730, 0)),  # 8
    Part.LineSegment(App.Vector(-400, 1730, 0), App.Vector(-200, 1730, 0)),  # 9
    Part.LineSegment(App.Vector(-200, 1730, 0), App.Vector(-200, 1930, 0)),  # 10
    Part.LineSegment(App.Vector(-200, 1930, 0), App.Vector(-400, 1930, 0)),  # 11
], False)
sketch9.addConstraint([
    Sketcher.Constraint("Coincident", 0, 2, 1, 1),
    Sketcher.Constraint("Coincident", 1, 2, 2, 1),
    Sketcher.Constraint("Coincident", 2, 2, 3, 1),
    Sketcher.Constraint("Coincident", 3, 2, 0, 1),
    Sketcher.Constraint("Coincident", 4, 2, 5, 1),
    Sketcher.Constraint("Coincident", 5, 2, 6, 1),
    Sketcher.Constraint("Coincident", 6, 2, 7, 1),
    Sketcher.Constraint("Coincident", 7, 2, 4, 1),
    Sketcher.Constraint("Coincident", 8, 2, 9, 1),
    Sketcher.Constraint("Coincident", 9, 2, 10, 1),
    Sketcher.Constraint("Coincident", 10, 2, 11, 1),
    Sketcher.Constraint("Coincident", 11, 2, 8, 1),
    Sketcher.Constraint("Vertical", 0),
    Sketcher.Constraint("Horizontal", 1),
    Sketcher.Constraint("Vertical", 2),
    Sketcher.Constraint("Horizontal", 3),
    Sketcher.Constraint("Vertical", 4),
    Sketcher.Constraint("Horizontal", 5),
    Sketcher.Constraint("Vertical", 6),
    Sketcher.Constraint("Horizontal", 7),
    Sketcher.Constraint("Vertical", 8),
    Sketcher.Constraint("Horizontal", 9),
    Sketcher.Constraint("Vertical", 10),
    Sketcher.Constraint("Horizontal", 11),
    Sketcher.Constraint("Horizontal", 1, 2, 4, 2),
    Sketcher.Constraint("Horizontal", 3, 2, 6, 2),
    Sketcher.Constraint("Horizontal", 7, 2, 10, 2),
    Sketcher.Constraint("Equal", 3, 5),
    Sketcher.Constraint("Equal", 11, 8),
    Sketcher.Constraint("DistanceX", 1, 1, 1, 2, 800.0),
    Sketcher.Constraint("DistanceX", 9, 1, 9, 2, 200.0),
    Sketcher.Constraint("DistanceY", 0, 2, 0, 1, 600.0),
    Sketcher.Constraint("DistanceX", 0, 2, -1, 1, 3220.0),
    Sketcher.Constraint("DistanceY", -1, 1, 0, 2, 1330.0),
    Sketcher.Constraint("DistanceX", 4, 2, -1, 1, 1620.0),
    Sketcher.Constraint("DistanceX", 8, 2, -1, 1, 400.0),
])
pocket7 = body.newObject("PartDesign::Pocket", "Pocket006")
pocket7.Profile = sketch9
pocket7.Type = "ThroughAll"

# Sketch on YZ plane
sketch10 = body.newObject("Sketcher::SketchObject", "Sketch009")
sketch10.AttachmentSupport = (doc.getObject("YZ_Plane"), [""])
sketch10.MapMode = "FlatFace"
sketch10.addGeometry([
    Part.LineSegment(App.Vector(-3320, 2030, 0), App.Vector(-3320, 1230, 0)),  # 0
    Part.LineSegment(App.Vector(-3320, 1230, 0), App.Vector(-2320, 1230, 0)),  # 1
    Part.LineSegment(App.Vector(-2320, 1230, 0), App.Vector(-2320, 2030, 0)),  # 2
    Part.LineSegment(App.Vector(-2320, 2030, 0), App.Vector(-3320, 2030, 0)),  # 3
    Part.LineSegment(App.Vector(-1720, 2030, 0), App.Vector(-1720, 1230, 0)),  # 4
    Part.LineSegment(App.Vector(-1720, 1230, 0), App.Vector(-720, 1230, 0)),  # 5
    Part.LineSegment(App.Vector(-720, 1230, 0), App.Vector(-720, 2030, 0)),  # 6
    Part.LineSegment(App.Vector(-720, 2030, 0), App.Vector(-1720, 2030, 0)),  # 7
], False)
sketch10.addConstraint([
    Sketcher.Constraint("Coincident", 0, 2, 1, 1),
    Sketcher.Constraint("Coincident", 1, 2, 2, 1),
    Sketcher.Constraint("Coincident", 2, 2, 3, 1),
    Sketcher.Constraint("Coincident", 3, 2, 0, 1),
    Sketcher.Constraint("Coincident", 4, 2, 5, 1),
    Sketcher.Constraint("Coincident", 5, 2, 6, 1),
    Sketcher.Constraint("Coincident", 6, 2, 7, 1),
    Sketcher.Constraint("Coincident", 7, 2, 4, 1),
    Sketcher.Constraint("Vertical", 0),
    Sketcher.Constraint("Horizontal", 1),
    Sketcher.Constraint("Vertical", 2),
    Sketcher.Constraint("Horizontal", 3),
    Sketcher.Constraint("Vertical", 4),
    Sketcher.Constraint("Horizontal", 5),
    Sketcher.Constraint("Vertical", 6),
    Sketcher.Constraint("Horizontal", 7),
    Sketcher.Constraint("Horizontal", 1, 2, 4, 2),
    Sketcher.Constraint("Horizontal", 3, 2, 6, 2),
    Sketcher.Constraint("Equal", 3, 5),
    Sketcher.Constraint("DistanceX", 1, 1, 1, 2, 1000.0),
    Sketcher.Constraint("DistanceY", 0, 2, 0, 1, 800.0),
    Sketcher.Constraint("DistanceX", 0, 2, -1, 1, 3320.0),
    Sketcher.Constraint("DistanceY", -1, 1, 0, 2, 1230.0),
    Sketcher.Constraint("DistanceX", 4, 2, -1, 1, 1720.0),
])
pocket8 = body.newObject("PartDesign::Pocket", "Pocket007")
pocket8.Profile = sketch10
pocket8.Length = 125

# Sketch on YZ plane
sketch11 = body.newObject("Sketcher::SketchObject", "Sketch010")
sketch11.AttachmentSupport = (doc.getObject("YZ_Plane"), [""])
sketch11.MapMode = "FlatFace"
sketch11.AttachmentOffset = App.Placement(App.Vector(0, 0, -300), App.Rotation())
sketch11.addGeometry([
    Part.LineSegment(App.Vector(-2320, 2030, 0), App.Vector(-2320, 1230, 0)),  # 0
    Part.LineSegment(App.Vector(-2320, 1230, 0), App.Vector(-3320, 1230, 0)),  # 1
    Part.LineSegment(App.Vector(-3320, 1230, 0), App.Vector(-3320, 2030, 0)),  # 2
    Part.LineSegment(App.Vector(-3320, 2030, 0), App.Vector(-2320, 2030, 0)),  # 3
    Part.LineSegment(App.Vector(-720, 2030, 0), App.Vector(-720, 1230, 0)),  # 4
    Part.LineSegment(App.Vector(-720, 1230, 0), App.Vector(-1720, 1230, 0)),  # 5
    Part.LineSegment(App.Vector(-1720, 1230, 0), App.Vector(-1720, 2030, 0)),  # 6
    Part.LineSegment(App.Vector(-1720, 2030, 0), App.Vector(-720, 2030, 0)),  # 7
], False)
sketch11.addConstraint([
    Sketcher.Constraint("Coincident", 0, 2, 1, 1),
    Sketcher.Constraint("Coincident", 1, 2, 2, 1),
    Sketcher.Constraint("Coincident", 2, 2, 3, 1),
    Sketcher.Constraint("Coincident", 3, 2, 0, 1),
    Sketcher.Constraint("Coincident", 4, 2, 5, 1),
    Sketcher.Constraint("Coincident", 5, 2, 6, 1),
    Sketcher.Constraint("Coincident", 6, 2, 7, 1),
    Sketcher.Constraint("Coincident", 7, 2, 4, 1),
    Sketcher.Constraint("Vertical", 0),
    Sketcher.Constraint("Horizontal", 1),
    Sketcher.Constraint("Vertical", 2),
    Sketcher.Constraint("Horizontal", 3),
    Sketcher.Constraint("Vertical", 4),
    Sketcher.Constraint("Horizontal", 5),
    Sketcher.Constraint("Vertical", 6),
    Sketcher.Constraint("Horizontal", 7),
    Sketcher.Constraint("Horizontal", 1, 2, 4, 2),
    Sketcher.Constraint("Horizontal", 3, 2, 6, 2),
    Sketcher.Constraint("Equal", 3, 5),
    Sketcher.Constraint("DistanceX", 1, 2, 1, 1, 1000.0),
    Sketcher.Constraint("DistanceY", 0, 2, 0, 1, 800.0),
    Sketcher.Constraint("DistanceX", 0, 2, -1, 1, 2320.0),
    Sketcher.Constraint("DistanceY", -1, 1, 0, 2, 1230.0),
    Sketcher.Constraint("DistanceX", 4, 2, -1, 1, 720.0),
])
pocket9 = body.newObject("PartDesign::Pocket", "Pocket008")
pocket9.Profile = sketch11
pocket9.Length = 125
pocket9.Reversed = True

# Sketch on XY plane
sketch12 = body.newObject("Sketcher::SketchObject", "Sketch011")
sketch12.AttachmentSupport = (doc.getObject("XY_Plane"), [""])
sketch12.MapMode = "FlatFace"
sketch12.addGeometry([
    Part.LineSegment(App.Vector(3250, -5480, 0), App.Vector(3250, -5680, 0)),
    Part.LineSegment(App.Vector(3250, -5680, 0), App.Vector(4700, -5680, 0)),
    Part.LineSegment(App.Vector(4700, -5680, 0), App.Vector(4700, -5480, 0)),
    Part.LineSegment(App.Vector(4700, -5480, 0), App.Vector(3250, -5480, 0)),
], False)
sketch12.addConstraint([
    Sketcher.Constraint("Coincident", 0, 2, 1, 1),
    Sketcher.Constraint("Coincident", 1, 2, 2, 1),
    Sketcher.Constraint("Coincident", 2, 2, 3, 1),
    Sketcher.Constraint("Coincident", 3, 2, 0, 1),
    Sketcher.Constraint("Vertical", 0),
    Sketcher.Constraint("Horizontal", 1),
    Sketcher.Constraint("Vertical", 2),
    Sketcher.Constraint("Horizontal", 3),
    Sketcher.Constraint("DistanceX", 1, 1, 1, 2, 1450.0),
    Sketcher.Constraint("DistanceY", 0, 2, 0, 1, 200.0),
    Sketcher.Constraint("DistanceX", -1, 1, 0, 2, 3250.0),
    Sketcher.Constraint("DistanceY", 0, 2, -1, 1, 5680.0),
])
pad3 = body.newObject("PartDesign::Pad", "Pad002")
pad3.Profile = sketch12
pad3.Length = 1100

# Sketch on XY plane
sketch13 = body.newObject("Sketcher::SketchObject", "Sketch012")
sketch13.AttachmentSupport = (doc.getObject("XY_Plane"), [""])
sketch13.MapMode = "FlatFace"
sketch13.addGeometry([
    Part.ArcOfCircle(Part.Circle(App.Vector(4700, -6850, 0), App.Vector(0, 0, 1), 700), math.radians(90), math.radians(135)),
    Part.LineSegment(App.Vector(4205, -6355, 0), App.Vector(4209, -6359, 0)),
    Part.ArcOfCircle(Part.Circle(App.Vector(4700, -6850, 0), App.Vector(0, 0, 1), 695), math.radians(90), math.radians(135)),
    Part.LineSegment(App.Vector(4700, -6155, 0), App.Vector(4700, -6150, 0)),
], False)
sketch13.addConstraint([
    Sketcher.Constraint("Coincident", 0, 2, 1, 1),
    Sketcher.Constraint("Coincident", 1, 2, 2, 2),
    Sketcher.Constraint("Coincident", 2, 1, 3, 1),
    Sketcher.Constraint("Coincident", 3, 2, 0, 1),
    Sketcher.Constraint("Vertical", 3),
    Sketcher.Constraint("Coincident", 2, 3, 0, 3),
    Sketcher.Constraint("DistanceY", 3, 1, 3, 2, 5.0),
    Sketcher.Constraint("Angle", 1, Q("-45 deg")),
    Sketcher.Constraint("DistanceX", -1, 1, 0, 3, 4699.999999),
    Sketcher.Constraint("DistanceY", 2, 1, -1, 1, 6155.0),
    Sketcher.Constraint("DistanceX", -1, 1, 3, 2, 4700.0),
    Sketcher.Constraint("Radius", 0, 699.999997),
    Sketcher.Constraint("DistanceX", 1, 2, 0, 3, 491.439212),
])
pocket10 = body.newObject("PartDesign::Pocket", "Pocket009")
pocket10.Profile = sketch13
pocket10.Length = 5

doc.recompute()
